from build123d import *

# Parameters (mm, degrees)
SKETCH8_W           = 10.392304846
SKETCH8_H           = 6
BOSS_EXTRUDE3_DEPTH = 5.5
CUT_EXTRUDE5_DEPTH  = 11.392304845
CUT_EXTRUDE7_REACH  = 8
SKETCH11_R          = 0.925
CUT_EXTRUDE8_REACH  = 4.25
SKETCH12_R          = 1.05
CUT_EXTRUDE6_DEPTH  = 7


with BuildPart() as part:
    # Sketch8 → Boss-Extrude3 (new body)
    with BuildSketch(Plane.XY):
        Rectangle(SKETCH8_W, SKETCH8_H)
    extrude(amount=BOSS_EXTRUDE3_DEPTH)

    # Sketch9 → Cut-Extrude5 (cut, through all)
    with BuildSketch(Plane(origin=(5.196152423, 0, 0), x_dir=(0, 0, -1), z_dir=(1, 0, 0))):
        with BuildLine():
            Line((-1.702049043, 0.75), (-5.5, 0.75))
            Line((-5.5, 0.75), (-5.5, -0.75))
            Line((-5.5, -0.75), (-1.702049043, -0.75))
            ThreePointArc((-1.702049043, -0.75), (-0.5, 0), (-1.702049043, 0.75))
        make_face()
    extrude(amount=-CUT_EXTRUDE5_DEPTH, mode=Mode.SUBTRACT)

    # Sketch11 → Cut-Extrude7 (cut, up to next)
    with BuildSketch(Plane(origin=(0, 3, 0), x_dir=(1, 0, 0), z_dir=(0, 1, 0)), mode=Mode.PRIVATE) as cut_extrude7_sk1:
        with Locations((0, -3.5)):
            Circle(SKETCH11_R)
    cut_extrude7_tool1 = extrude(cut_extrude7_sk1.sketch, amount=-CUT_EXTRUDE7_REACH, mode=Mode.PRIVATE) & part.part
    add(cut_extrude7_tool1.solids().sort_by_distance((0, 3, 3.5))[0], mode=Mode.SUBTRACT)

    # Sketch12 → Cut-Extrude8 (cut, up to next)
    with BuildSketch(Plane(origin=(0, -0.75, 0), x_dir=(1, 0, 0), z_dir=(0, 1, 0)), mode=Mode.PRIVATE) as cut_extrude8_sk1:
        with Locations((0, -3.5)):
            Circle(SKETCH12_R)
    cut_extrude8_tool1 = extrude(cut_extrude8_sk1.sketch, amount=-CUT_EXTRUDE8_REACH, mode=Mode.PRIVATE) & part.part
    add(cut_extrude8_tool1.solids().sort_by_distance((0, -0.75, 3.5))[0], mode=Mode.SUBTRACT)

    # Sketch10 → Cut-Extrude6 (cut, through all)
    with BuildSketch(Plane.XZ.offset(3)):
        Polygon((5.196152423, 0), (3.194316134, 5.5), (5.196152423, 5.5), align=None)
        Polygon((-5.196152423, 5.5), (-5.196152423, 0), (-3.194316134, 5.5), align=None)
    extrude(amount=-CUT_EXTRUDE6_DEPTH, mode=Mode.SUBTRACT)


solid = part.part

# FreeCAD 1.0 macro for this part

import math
import FreeCAD as App
import Part
import Sketcher
Q = App.Units.Quantity


def add_polygon(sketch, points):
    """Adds a closed chain of lines whose ends are joined by coincident constraints."""
    first, n = sketch.GeometryCount, len(points)
    for a, b in zip(points, points[1:] + points[:1]):
        sketch.addGeometry(Part.LineSegment(App.Vector(*a, 0), App.Vector(*b, 0)), False)
    for i in range(n):
        sketch.addConstraint(Sketcher.Constraint("Coincident", first + i, 2, first + (i + 1) % n, 1))

doc = App.newDocument("Part")
body = doc.addObject("PartDesign::Body", "Body")

sketch1 = body.newObject("Sketcher::SketchObject", "Sketch")
sketch1.AttachmentSupport = (doc.getObject("XY_Plane"), [""])
sketch1.MapMode = "FlatFace"
add_polygon(sketch1, [(-5.196152, 3), (-5.196152, -3), (5.196152, -3), (5.196152, 3)])
sketch1.addConstraint([
    Sketcher.Constraint("Vertical", 0),
    Sketcher.Constraint("Horizontal", 1),
    Sketcher.Constraint("Vertical", 2),
    Sketcher.Constraint("Horizontal", 3),
    Sketcher.Constraint("Symmetric", 0, 2, 2, 2, -1, 1),
    Sketcher.Constraint("DistanceY", 0, 2, 0, 1, 6.0),
    Sketcher.Constraint("DistanceX", 1, 1, 1, 2, 10.392305),
])
pad1 = body.newObject("PartDesign::Pad", "Pad")
pad1.Profile = sketch1
pad1.Length = 5.5

sketch2 = body.newObject("Sketcher::SketchObject", "Sketch001")
sketch2.AttachmentSupport = (doc.getObject("YZ_Plane"), [""])
sketch2.MapMode = "FlatFace"
sketch2.AttachmentOffset = App.Placement(App.Vector(0, 0, 5.196152), App.Rotation())
sketch2.addGeometry([
    Part.LineSegment(App.Vector(0.75, 1.702049, 0), App.Vector(0.75, 5.5, 0)),
    Part.LineSegment(App.Vector(0.75, 5.5, 0), App.Vector(-0.75, 5.5, 0)),
    Part.LineSegment(App.Vector(-0.75, 5.5, 0), App.Vector(-0.75, 1.702049, 0)),
    Part.ArcOfCircle(Part.Circle(App.Vector(0, 1.335, 0), App.Vector(0, 0, 1), 0.835), math.radians(153.922933), math.radians(386.077067)),
], False)
sketch2.addConstraint([
    Sketcher.Constraint("Coincident", 0, 2, 1, 1),
    Sketcher.Constraint("Coincident", 1, 2, 2, 1),
    Sketcher.Constraint("Coincident", 2, 2, 3, 1),
    Sketcher.Constraint("Coincident", 3, 2, 0, 1),
    Sketcher.Constraint("Vertical", 0),
    Sketcher.Constraint("Horizontal", 1),
    Sketcher.Constraint("Vertical", 2),
    Sketcher.Constraint("Symmetric", 2, 2, 3, 2, -2),
    Sketcher.Constraint("DistanceX", 1, 2, 1, 1, 1.5),
    Sketcher.Constraint("Radius", 3, 0.835),
    Sketcher.Constraint("DistanceY", -1, 1, 0, 2, 5.5),
    Sketcher.Constraint("DistanceY", -1, 1, 3, 3, 1.335),
])
pocket1 = body.newObject("PartDesign::Pocket", "Pocket")
pocket1.Profile = sketch2
pocket1.Type = "ThroughAll"

sketch3 = body.newObject("Sketcher::SketchObject", "Sketch002")
sketch3.AttachmentSupport = (doc.getObject("XZ_Plane"), [""])
sketch3.MapMode = "FlatFace"
sketch3.AttachmentOffset = App.Placement(App.Vector(0, 0, -3), App.Rotation())
sketch3.addGeometry(Part.Circle(App.Vector(0, 3.5, 0), App.Vector(0, 0, 1), 0.925), False)
sketch3.addConstraint([
    Sketcher.Constraint("PointOnObject", 0, 3, -2),
    Sketcher.Constraint("Diameter", 0, 1.85),
    Sketcher.Constraint("DistanceY", -1, 1, 0, 3, 3.5),
])
pocket2 = body.newObject("PartDesign::Pocket", "Pocket001")
pocket2.Profile = sketch3
pocket2.Type = "UpToFirst"
pocket2.Reversed = True

sketch4 = body.newObject("Sketcher::SketchObject", "Sketch003")
sketch4.AttachmentSupport = (doc.getObject("XZ_Plane"), [""])
sketch4.MapMode = "FlatFace"
sketch4.AttachmentOffset = App.Placement(App.Vector(0, 0, 0.75), App.Rotation())
sketch4.addGeometry(Part.Circle(App.Vector(0, 3.5, 0), App.Vector(0, 0, 1), 1.05), False)
sketch4.addConstraint([
    Sketcher.Constraint("PointOnObject", 0, 3, -2),
    Sketcher.Constraint("Diameter", 0, 2.1),
    Sketcher.Constraint("DistanceY", -1, 1, 0, 3, 3.5),
])
pocket3 = body.newObject("PartDesign::Pocket", "Pocket002")
pocket3.Profile = sketch4
pocket3.Type = "UpToFirst"
pocket3.Reversed = True

sketch5 = body.newObject("Sketcher::SketchObject", "Sketch004")
sketch5.AttachmentSupport = (doc.getObject("XZ_Plane"), [""])
sketch5.MapMode = "FlatFace"
sketch5.AttachmentOffset = App.Placement(App.Vector(0, 0, 3), App.Rotation())
add_polygon(sketch5, [(3.194316, 5.5), (5.196152, 0), (5.196152, 5.5)])
add_polygon(sketch5, [(-5.196152, 5.5), (-5.196152, 0), (-3.194316, 5.5)])
sketch5.addConstraint([
    Sketcher.Constraint("Vertical", 1),
    Sketcher.Constraint("Horizontal", 2),
    Sketcher.Constraint("Vertical", 3),
    Sketcher.Constraint("Horizontal", 5),
    Sketcher.Constraint("Symmetric", 0, 2, 3, 2, -1, 1),
    Sketcher.Constraint("Symmetric", 2, 2, 4, 2, -2),
    Sketcher.Constraint("PointOnObject", 0, 2, -1),
    Sketcher.Constraint("Angle", 0, Q("-70 deg")),
    Sketcher.Constraint("DistanceY", 1, 1, 1, 2, 5.5),
    Sketcher.Constraint("DistanceX", 3, 2, 2, 2, 8.390469),
])
pocket4 = body.newObject("PartDesign::Pocket", "Pocket003")
pocket4.Profile = sketch5
pocket4.Type = "ThroughAll"

doc.recompute()
